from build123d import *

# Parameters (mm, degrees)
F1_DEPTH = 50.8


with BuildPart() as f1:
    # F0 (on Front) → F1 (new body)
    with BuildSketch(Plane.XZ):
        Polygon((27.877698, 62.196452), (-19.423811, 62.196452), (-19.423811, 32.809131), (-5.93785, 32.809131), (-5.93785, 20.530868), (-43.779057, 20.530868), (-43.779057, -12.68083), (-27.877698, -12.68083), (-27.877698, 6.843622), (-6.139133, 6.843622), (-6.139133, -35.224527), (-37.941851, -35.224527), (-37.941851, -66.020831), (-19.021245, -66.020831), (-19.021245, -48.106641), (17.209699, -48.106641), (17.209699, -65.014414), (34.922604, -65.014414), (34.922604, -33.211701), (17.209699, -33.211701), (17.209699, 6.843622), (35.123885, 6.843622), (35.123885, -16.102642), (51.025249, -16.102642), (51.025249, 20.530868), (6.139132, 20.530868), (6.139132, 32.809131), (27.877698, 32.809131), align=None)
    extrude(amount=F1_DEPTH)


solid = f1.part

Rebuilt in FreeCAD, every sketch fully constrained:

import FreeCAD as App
import Part
import Sketcher
from FreeCAD import Vector
Q = App.Units.Quantity

doc = App.newDocument("Part")
body = doc.addObject("PartDesign::Body", "Body")

sketch1 = body.newObject("Sketcher::SketchObject", "Sketch")
sketch1.AttachmentSupport = (doc.getObject("XZ_Plane"), [""])
sketch1.MapMode = "FlatFace"
sketch1.addGeometry([
    Part.LineSegment(Vector(28, 62, 0), Vector(-19, 62, 0)),
    Part.LineSegment(Vector(-19, 62, 0), Vector(-19, 33, 0)),
    Part.LineSegment(Vector(-19, 33, 0), Vector(-6, 33, 0)),
    Part.LineSegment(Vector(-6, 33, 0), Vector(-6, 21, 0)),
    Part.LineSegment(Vector(-6, 21, 0), Vector(-44, 21, 0)),
    Part.LineSegment(Vector(-44, 21, 0), Vector(-44, -13, 0)),
    Part.LineSegment(Vector(-44, -13, 0), Vector(-28, -13, 0)),
    Part.LineSegment(Vector(-28, -13, 0), Vector(-28, 7, 0)),
    Part.LineSegment(Vector(-28, 7, 0), Vector(-6, 7, 0)),
    Part.LineSegment(Vector(-6, 7, 0), Vector(-6, -35, 0)),
    Part.LineSegment(Vector(-6, -35, 0), Vector(-38, -35, 0)),
    Part.LineSegment(Vector(-38, -35, 0), Vector(-38, -66, 0)),
    Part.LineSegment(Vector(-38, -66, 0), Vector(-19, -66, 0)),
    Part.LineSegment(Vector(-19, -66, 0), Vector(-19, -48, 0)),
    Part.LineSegment(Vector(-19, -48, 0), Vector(17, -48, 0)),
    Part.LineSegment(Vector(17, -48, 0), Vector(17, -65, 0)),
    Part.LineSegment(Vector(17, -65, 0), Vector(35, -65, 0)),
    Part.LineSegment(Vector(35, -65, 0), Vector(35, -33, 0)),
    Part.LineSegment(Vector(35, -33, 0), Vector(17, -33, 0)),
    Part.LineSegment(Vector(17, -33, 0), Vector(17, 7, 0)),
    Part.LineSegment(Vector(17, 7, 0), Vector(35, 7, 0)),
    Part.LineSegment(Vector(35, 7, 0), Vector(35, -16, 0)),
    Part.LineSegment(Vector(35, -16, 0), Vector(51, -16, 0)),
    Part.LineSegment(Vector(51, -16, 0), Vector(51, 21, 0)),
    Part.LineSegment(Vector(51, 21, 0), Vector(6, 21, 0)),
    Part.LineSegment(Vector(6, 21, 0), Vector(6, 33, 0)),
    Part.LineSegment(Vector(6, 33, 0), Vector(28, 33, 0)),
    Part.LineSegment(Vector(28, 33, 0), Vector(28, 62, 0)),
], False)
sketch1.addConstraint([
    Sketcher.Constraint("Coincident", 0, 2, 1, 1),
    Sketcher.Constraint("Coincident", 1, 2, 2, 1),
    Sketcher.Constraint("Coincident", 2, 2, 3, 1),
    Sketcher.Constraint("Coincident", 3, 2, 4, 1),
    Sketcher.Constraint("Coincident", 4, 2, 5, 1),
    Sketcher.Constraint("Coincident", 5, 2, 6, 1),
    Sketcher.Constraint("Coincident", 6, 2, 7, 1),
    Sketcher.Constraint("Coincident", 7, 2, 8, 1),
    Sketcher.Constraint("Coincident", 8, 2, 9, 1),
    Sketcher.Constraint("Coincident", 9, 2, 10, 1),
    Sketcher.Constraint("Coincident", 10, 2, 11, 1),
    Sketcher.Constraint("Coincident", 11, 2, 12, 1),
    Sketcher.Constraint("Coincident", 12, 2, 13, 1),
    Sketcher.Constraint("Coincident", 13, 2, 14, 1),
    Sketcher.Constraint("Coincident", 14, 2, 15, 1),
    Sketcher.Constraint("Coincident", 15, 2, 16, 1),
    Sketcher.Constraint("Coincident", 16, 2, 17, 1),
    Sketcher.Constraint("Coincident", 17, 2, 18, 1),
    Sketcher.Constraint("Coincident", 18, 2, 19, 1),
    Sketcher.Constraint("Coincident", 19, 2, 20, 1),
    Sketcher.Constraint("Coincident", 20, 2, 21, 1),
    Sketcher.Constraint("Coincident", 21, 2, 22, 1),
    Sketcher.Constraint("Coincident", 22, 2, 23, 1),
    Sketcher.Constraint("Coincident", 23, 2, 24, 1),
    Sketcher.Constraint("Coincident", 24, 2, 25, 1),
    Sketcher.Constraint("Coincident", 25, 2, 26, 1),
    Sketcher.Constraint("Coincident", 26, 2, 27, 1),
    Sketcher.Constraint("Coincident", 27, 2, 0, 1),
    Sketcher.Constraint("Horizontal", 0),
    Sketcher.Constraint("Vertical", 1),
    Sketcher.Constraint("Horizontal", 2),
    Sketcher.Constraint("Vertical", 3),
    Sketcher.Constraint("Horizontal", 4),
    Sketcher.Constraint("Vertical", 5),
    Sketcher.Constraint("Horizontal", 6),
    Sketcher.Constraint("Vertical", 7),
    Sketcher.Constraint("Horizontal", 8),
    Sketcher.Constraint("Vertical", 9),
    Sketcher.Constraint("Horizontal", 10),
    Sketcher.Constraint("Vertical", 11),
    Sketcher.Constraint("Horizontal", 12),
    Sketcher.Constraint("Vertical", 13),
    Sketcher.Constraint("Horizontal", 14),
    Sketcher.Constraint("Vertical", 15),
    Sketcher.Constraint("Horizontal", 16),
    Sketcher.Constraint("Vertical", 17),
    Sketcher.Constraint("Horizontal", 18),
    Sketcher.Constraint("Vertical", 19),
    Sketcher.Constraint("Horizontal", 20),
    Sketcher.Constraint("Vertical", 21),
    Sketcher.Constraint("Horizontal", 22),
    Sketcher.Constraint("Vertical", 23),
    Sketcher.Constraint("Horizontal", 24),
    Sketcher.Constraint("Vertical", 25),
    Sketcher.Constraint("Horizontal", 26),
    Sketcher.Constraint("Vertical", 27),
    Sketcher.Constraint("Horizontal", 8, 2, 19, 2),
    Sketcher.Constraint("Horizontal", 4, 2, 23, 2),
    Sketcher.Constraint("Horizontal", 2, 2, 25, 2),
    Sketcher.Constraint("Vertical", 15, 2, 18, 2),
    Sketcher.Constraint("Equal", 8, 26),
    Sketcher.Constraint("DistanceY", 11, 2, 5, 2, Q("2.1 in")),
    Sketcher.Constraint("DistanceY", 14, 2, 21, 2, Q("1.26 in")),
    Sketcher.Constraint("DistanceX", 19, 2, 26, 2, Q("0.42 in")),
    Sketcher.Constraint("DistanceX", 0, 2, 0, 1, 47.301509),
    Sketcher.Constraint("DistanceX", 2, 1, 2, 2, 13.485961),
    Sketcher.Constraint("DistanceX", 6, 1, 6, 2, 15.901359),
    Sketcher.Constraint("DistanceY", 1, 2, 1, 1, 29.387321),
    Sketcher.Constraint("DistanceY", 7, 1, 7, 2, 19.524452),
    Sketcher.Constraint("DistanceY", 9, 2, 9, 1, 42.068149),
    Sketcher.Constraint("DistanceY", 13, 1, 13, 2, 17.91419),
    Sketcher.Constraint("DistanceY", 23, 1, 23, 2, 36.63351),
    Sketcher.Constraint("DistanceX", -1, 1, 14, 2, 17.209699),
    Sketcher.Constraint("DistanceY", 17, 2, -1, 1, 33.211701),
    Sketcher.Constraint("DistanceX", 4, 2, 4, 1, 37.841207),
    Sketcher.Constraint("DistanceX", 8, 1, 8, 2, 21.738565),
    Sketcher.Constraint("DistanceX", 10, 2, 10, 1, 31.802718),
    Sketcher.Constraint("DistanceX", 12, 1, 12, 2, 18.920606),
    Sketcher.Constraint("DistanceX", 16, 1, 16, 2, 17.712905),
    Sketcher.Constraint("DistanceX", 20, 1, 20, 2, 17.914186),
    Sketcher.Constraint("DistanceX", 22, 1, 22, 2, 15.901364),
    Sketcher.Constraint("DistanceY", 3, 2, 3, 1, 12.278263),
    Sketcher.Constraint("DistanceY", 15, 2, 15, 1, 16.907773),
    Sketcher.Constraint("DistanceY", 17, 1, 17, 2, 31.802713),
])
pad1 = body.newObject("PartDesign::Pad", "Pad")
pad1.Profile = sketch1
pad1.Length = Q("2 in")

doc.recompute()
